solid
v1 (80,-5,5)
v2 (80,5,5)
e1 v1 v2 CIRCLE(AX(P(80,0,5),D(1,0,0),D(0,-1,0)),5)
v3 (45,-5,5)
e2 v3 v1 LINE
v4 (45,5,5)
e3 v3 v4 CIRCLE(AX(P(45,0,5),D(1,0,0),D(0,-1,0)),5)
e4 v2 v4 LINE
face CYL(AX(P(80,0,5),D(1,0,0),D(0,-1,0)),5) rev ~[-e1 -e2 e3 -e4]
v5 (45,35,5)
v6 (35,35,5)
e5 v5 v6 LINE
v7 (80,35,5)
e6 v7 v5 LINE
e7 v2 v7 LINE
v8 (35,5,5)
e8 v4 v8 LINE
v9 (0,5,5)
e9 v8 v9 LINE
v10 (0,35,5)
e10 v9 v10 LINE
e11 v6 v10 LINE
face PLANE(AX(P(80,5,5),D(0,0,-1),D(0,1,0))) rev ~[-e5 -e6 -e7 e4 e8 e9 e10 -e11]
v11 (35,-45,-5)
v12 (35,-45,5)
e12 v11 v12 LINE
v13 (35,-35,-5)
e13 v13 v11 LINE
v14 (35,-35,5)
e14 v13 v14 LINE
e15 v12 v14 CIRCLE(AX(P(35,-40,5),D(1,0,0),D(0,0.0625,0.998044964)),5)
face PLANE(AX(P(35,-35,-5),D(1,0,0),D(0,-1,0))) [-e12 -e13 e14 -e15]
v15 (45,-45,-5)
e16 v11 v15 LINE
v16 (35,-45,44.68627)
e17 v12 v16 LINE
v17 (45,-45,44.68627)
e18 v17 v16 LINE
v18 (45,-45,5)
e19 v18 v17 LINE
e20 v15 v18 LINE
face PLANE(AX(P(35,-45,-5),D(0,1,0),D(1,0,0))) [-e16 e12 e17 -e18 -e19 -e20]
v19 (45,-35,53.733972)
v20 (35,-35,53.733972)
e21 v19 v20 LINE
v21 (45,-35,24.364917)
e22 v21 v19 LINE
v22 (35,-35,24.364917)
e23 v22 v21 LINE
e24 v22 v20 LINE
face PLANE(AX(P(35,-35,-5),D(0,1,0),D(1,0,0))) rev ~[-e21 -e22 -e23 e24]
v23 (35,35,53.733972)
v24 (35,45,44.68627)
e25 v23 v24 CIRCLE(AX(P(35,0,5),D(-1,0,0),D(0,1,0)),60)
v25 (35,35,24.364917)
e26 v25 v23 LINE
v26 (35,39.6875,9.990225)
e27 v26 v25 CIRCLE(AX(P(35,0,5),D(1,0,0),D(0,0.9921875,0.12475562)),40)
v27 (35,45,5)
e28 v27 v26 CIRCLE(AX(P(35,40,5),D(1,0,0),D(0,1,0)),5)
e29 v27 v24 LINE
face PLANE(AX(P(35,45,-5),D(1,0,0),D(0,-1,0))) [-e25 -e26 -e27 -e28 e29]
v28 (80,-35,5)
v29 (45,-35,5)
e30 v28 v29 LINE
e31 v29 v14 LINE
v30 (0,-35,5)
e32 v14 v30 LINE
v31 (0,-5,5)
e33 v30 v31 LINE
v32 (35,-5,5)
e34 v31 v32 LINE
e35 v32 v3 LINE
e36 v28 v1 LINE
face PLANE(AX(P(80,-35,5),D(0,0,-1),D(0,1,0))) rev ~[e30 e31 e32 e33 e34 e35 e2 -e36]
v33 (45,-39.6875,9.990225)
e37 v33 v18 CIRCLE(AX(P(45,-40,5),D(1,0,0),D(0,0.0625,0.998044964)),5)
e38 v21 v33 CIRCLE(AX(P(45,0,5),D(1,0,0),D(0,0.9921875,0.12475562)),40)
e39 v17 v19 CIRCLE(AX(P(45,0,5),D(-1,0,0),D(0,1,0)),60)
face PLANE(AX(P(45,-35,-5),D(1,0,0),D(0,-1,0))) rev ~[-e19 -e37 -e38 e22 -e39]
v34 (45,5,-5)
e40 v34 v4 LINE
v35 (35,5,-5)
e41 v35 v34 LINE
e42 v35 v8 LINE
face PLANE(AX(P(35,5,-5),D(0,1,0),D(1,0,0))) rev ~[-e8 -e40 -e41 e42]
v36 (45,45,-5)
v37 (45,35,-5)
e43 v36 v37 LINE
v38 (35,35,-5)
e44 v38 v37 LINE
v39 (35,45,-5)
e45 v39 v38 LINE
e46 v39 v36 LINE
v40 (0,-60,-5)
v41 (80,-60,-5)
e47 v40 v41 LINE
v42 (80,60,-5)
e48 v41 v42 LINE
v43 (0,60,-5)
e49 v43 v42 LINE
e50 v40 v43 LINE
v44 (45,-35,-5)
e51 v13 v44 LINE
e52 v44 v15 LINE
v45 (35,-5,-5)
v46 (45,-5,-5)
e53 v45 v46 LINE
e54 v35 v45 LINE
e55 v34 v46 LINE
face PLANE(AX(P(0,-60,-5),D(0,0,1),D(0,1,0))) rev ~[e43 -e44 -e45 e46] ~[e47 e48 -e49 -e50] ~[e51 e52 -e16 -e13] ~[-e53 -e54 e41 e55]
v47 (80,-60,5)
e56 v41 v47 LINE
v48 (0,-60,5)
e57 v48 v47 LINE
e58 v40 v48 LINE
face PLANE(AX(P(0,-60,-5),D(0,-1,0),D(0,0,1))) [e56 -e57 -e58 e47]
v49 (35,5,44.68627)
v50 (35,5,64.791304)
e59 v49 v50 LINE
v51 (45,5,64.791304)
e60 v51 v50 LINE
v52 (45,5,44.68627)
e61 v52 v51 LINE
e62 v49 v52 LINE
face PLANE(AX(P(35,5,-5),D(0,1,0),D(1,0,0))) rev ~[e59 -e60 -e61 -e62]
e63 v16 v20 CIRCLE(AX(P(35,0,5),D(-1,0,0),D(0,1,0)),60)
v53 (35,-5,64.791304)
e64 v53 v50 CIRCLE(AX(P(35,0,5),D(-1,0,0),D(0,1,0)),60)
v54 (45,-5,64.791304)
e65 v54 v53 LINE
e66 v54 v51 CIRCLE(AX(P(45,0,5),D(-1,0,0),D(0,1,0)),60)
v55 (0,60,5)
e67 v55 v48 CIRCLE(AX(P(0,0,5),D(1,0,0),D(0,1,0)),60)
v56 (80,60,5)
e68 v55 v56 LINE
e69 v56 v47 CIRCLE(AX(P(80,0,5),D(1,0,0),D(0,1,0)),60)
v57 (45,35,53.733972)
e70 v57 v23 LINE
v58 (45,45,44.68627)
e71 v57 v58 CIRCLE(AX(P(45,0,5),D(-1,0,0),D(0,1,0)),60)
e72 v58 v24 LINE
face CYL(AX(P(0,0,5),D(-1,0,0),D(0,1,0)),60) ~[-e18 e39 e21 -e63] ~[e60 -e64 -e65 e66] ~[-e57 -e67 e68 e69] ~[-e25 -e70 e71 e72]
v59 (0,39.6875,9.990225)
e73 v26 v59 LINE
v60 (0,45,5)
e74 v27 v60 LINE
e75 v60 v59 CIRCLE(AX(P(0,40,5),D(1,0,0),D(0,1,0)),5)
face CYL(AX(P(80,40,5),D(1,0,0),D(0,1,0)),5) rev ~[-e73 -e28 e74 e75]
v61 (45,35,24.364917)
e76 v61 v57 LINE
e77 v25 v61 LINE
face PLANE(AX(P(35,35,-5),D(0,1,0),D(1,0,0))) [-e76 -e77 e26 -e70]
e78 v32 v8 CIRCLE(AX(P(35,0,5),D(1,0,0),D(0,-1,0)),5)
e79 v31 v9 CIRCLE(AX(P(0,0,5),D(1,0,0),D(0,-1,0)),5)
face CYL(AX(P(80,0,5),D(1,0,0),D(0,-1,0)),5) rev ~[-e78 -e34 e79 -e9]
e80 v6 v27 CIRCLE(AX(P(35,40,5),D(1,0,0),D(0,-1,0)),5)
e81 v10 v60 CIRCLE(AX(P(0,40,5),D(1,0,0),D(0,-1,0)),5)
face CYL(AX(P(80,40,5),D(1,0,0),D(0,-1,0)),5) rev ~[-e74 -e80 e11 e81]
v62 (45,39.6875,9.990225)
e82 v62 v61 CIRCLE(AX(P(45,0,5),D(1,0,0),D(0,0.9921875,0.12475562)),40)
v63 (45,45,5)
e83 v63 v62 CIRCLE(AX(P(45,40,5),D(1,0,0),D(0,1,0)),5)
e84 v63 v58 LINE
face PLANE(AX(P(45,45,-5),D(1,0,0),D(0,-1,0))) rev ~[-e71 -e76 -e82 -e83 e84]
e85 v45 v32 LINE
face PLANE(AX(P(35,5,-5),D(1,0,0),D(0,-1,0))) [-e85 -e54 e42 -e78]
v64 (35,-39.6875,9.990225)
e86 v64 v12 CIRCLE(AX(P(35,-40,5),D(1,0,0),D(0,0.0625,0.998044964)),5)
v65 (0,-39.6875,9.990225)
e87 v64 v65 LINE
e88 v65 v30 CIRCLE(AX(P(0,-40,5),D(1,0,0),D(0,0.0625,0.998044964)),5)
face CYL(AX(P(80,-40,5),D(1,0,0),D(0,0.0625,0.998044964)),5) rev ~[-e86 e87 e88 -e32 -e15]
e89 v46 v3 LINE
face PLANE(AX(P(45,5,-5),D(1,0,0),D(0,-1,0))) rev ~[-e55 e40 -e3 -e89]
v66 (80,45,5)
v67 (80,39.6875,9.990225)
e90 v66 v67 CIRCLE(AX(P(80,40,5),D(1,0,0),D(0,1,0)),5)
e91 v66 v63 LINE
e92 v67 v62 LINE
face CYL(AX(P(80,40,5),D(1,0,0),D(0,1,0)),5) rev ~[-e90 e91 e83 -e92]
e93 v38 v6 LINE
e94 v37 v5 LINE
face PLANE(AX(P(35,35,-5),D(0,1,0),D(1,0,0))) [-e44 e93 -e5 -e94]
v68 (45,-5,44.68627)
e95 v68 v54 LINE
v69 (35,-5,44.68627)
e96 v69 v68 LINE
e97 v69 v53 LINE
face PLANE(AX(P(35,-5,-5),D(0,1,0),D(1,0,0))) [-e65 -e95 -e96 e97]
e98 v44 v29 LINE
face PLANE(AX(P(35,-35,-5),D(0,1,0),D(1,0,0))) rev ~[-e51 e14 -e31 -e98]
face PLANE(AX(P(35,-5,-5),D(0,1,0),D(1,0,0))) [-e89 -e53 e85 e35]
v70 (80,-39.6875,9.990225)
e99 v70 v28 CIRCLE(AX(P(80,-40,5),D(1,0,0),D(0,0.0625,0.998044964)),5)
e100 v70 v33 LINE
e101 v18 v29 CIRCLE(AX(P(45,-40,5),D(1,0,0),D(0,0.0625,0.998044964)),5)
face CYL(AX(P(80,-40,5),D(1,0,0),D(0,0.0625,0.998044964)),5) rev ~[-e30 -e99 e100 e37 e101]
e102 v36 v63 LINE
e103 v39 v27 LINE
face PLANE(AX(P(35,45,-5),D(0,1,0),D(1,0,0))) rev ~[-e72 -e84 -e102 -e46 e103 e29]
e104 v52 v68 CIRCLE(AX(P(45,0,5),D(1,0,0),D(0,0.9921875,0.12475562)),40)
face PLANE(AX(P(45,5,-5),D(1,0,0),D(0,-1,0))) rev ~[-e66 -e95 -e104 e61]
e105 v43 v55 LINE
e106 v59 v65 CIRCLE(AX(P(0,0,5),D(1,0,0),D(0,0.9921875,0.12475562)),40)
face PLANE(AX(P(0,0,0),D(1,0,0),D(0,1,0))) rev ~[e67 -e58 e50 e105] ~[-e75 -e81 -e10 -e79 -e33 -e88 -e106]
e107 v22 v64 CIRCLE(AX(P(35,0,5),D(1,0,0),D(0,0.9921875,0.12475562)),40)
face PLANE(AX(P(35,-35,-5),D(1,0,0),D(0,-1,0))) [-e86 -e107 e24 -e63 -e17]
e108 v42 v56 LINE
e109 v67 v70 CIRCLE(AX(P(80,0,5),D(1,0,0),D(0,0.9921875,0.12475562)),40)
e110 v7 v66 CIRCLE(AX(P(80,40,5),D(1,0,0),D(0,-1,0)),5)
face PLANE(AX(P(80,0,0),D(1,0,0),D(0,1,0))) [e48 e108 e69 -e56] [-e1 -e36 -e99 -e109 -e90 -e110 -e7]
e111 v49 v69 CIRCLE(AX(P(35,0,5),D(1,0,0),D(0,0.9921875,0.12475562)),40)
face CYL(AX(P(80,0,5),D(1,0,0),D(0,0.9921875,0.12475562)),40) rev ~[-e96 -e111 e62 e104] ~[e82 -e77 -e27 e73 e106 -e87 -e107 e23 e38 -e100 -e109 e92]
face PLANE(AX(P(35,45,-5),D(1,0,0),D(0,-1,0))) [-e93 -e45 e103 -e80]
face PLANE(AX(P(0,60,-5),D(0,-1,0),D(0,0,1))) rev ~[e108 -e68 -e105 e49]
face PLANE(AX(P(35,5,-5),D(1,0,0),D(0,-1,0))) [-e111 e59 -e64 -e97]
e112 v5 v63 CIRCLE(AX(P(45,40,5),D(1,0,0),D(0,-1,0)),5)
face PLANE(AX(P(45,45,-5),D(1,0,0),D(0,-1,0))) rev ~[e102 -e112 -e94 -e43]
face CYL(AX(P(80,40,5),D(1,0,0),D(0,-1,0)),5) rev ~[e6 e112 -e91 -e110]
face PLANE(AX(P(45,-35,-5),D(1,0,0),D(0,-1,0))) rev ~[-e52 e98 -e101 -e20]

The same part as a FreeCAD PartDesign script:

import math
import FreeCAD as App
import Part
import Sketcher
from FreeCAD import Vector
Q = App.Units.Quantity


def add_polygon(sketch, points):
    """Adds a closed chain of lines whose ends are joined by coincident constraints."""
    first, n = sketch.GeometryCount, len(points)
    for a, b in zip(points, points[1:] + points[:1]):
        sketch.addGeometry(Part.LineSegment(App.Vector(*a, 0), App.Vector(*b, 0)), False)
    for i in range(n):
        sketch.addConstraint(Sketcher.Constraint("Coincident", first + i, 2, first + (i + 1) % n, 1))

doc = App.newDocument("Part")
body = doc.addObject("PartDesign::Body", "Body")

sketch1 = doc.addObject("Sketcher::SketchObject", "Sketch")
body.addObject(sketch1)
sketch1.AttachmentSupport = (doc.YZ_Plane, [""])
sketch1.MapMode = "FlatFace"
sketch1.addGeometry([
    Part.LineSegment(Vector(-60, 5, 0), Vector(-60, -5, 0)),
    Part.LineSegment(Vector(-60, -5, 0), Vector(60, -5, 0)),
    Part.LineSegment(Vector(60, -5, 0), Vector(60, 5, 0)),
    Part.ArcOfCircle(Part.Circle(Vector(0, 5, 0), Vector(0, 0, 1), 60), math.radians(0), math.radians(180)),
], False)
sketch1.addConstraint([
    Sketcher.Constraint("Coincident", 0, 2, 1, 1),
    Sketcher.Constraint("Coincident", 1, 2, 2, 1),
    Sketcher.Constraint("Tangent", 2, 2, 3, 1),
    Sketcher.Constraint("Tangent", 3, 2, 0, 1),
    Sketcher.Constraint("Vertical", 0),
    Sketcher.Constraint("Horizontal", 1),
    Sketcher.Constraint("Vertical", 2),
    Sketcher.Constraint("Symmetric", 0, 2, 2, 2, -1, 1),
    Sketcher.Constraint("Radius", 3, Q("60 mm")),
    Sketcher.Constraint("DistanceY", 0, 2, 0, 1, Q("10 mm")),
])
pad1 = doc.addObject("PartDesign::Pad", "Pad")
body.addObject(pad1)
pad1.Profile = sketch1
pad1.Length = 80

sketch2 = doc.addObject("Sketcher::SketchObject", "Sketch001")
body.addObject(sketch2)
sketch2.AttachmentSupport = (doc.YZ_Plane, [""])
sketch2.MapMode = "FlatFace"
sketch2.AttachmentOffset = App.Placement(Vector(0, 0, 80), App.Rotation())
sketch2.addGeometry([
    Part.ArcOfCircle(Part.Circle(Vector(0, 5, 0), Vector(0, 0, 1), 5), math.radians(180), math.radians(360)),
    Part.LineSegment(Vector(5, 5, 0), Vector(35, 5, 0)),
    Part.ArcOfCircle(Part.Circle(Vector(40, 5, 0), Vector(0, 0, 1), 5), math.radians(180), math.radians(360)),
    Part.ArcOfCircle(Part.Circle(Vector(40, 5, 0), Vector(0, 0, 1), 5), math.radians(0), math.radians(94)),
    Part.ArcOfCircle(Part.Circle(Vector(0, 5, 0), Vector(0, 0, 1), 40), math.radians(7), math.radians(173)),
    Part.ArcOfCircle(Part.Circle(Vector(-40, 5, 0), Vector(0, 0, 1), 5), math.radians(86), math.radians(360)),
    Part.LineSegment(Vector(-35, 5, 0), Vector(-5, 5, 0)),
], False)
sketch2.addConstraint([
    Sketcher.Constraint("Coincident", 0, 2, 1, 1),
    Sketcher.Constraint("Coincident", 1, 2, 2, 1),
    Sketcher.Constraint("Tangent", 2, 2, 3, 1),
    Sketcher.Constraint("Coincident", 3, 2, 4, 1),
    Sketcher.Constraint("Coincident", 4, 2, 5, 1),
    Sketcher.Constraint("Coincident", 5, 2, 6, 1),
    Sketcher.Constraint("Coincident", 6, 2, 0, 1),
    Sketcher.Constraint("Horizontal", 1),
    Sketcher.Constraint("Horizontal", 6),
    Sketcher.Constraint("Coincident", 4, 3, 0, 3),
    Sketcher.Constraint("Equal", 0, 2),
    Sketcher.Constraint("Equal", 2, 3),
    Sketcher.Constraint("Equal", 3, 5),
    Sketcher.Constraint("Symmetric", 2, 3, 5, 3, -2),
    Sketcher.Constraint("Symmetric", 0, 2, 6, 2, -2),
    Sketcher.Constraint("Horizontal", 0, 3, 2, 3),
    Sketcher.Constraint("Horizontal", 5, 3, 0, 2),
    Sketcher.Constraint("Horizontal", 1, 2, 2, 2),
    Sketcher.Constraint("Radius", 0, Q("5 mm")),
    Sketcher.Constraint("Radius", 4, Q("40 mm")),
    Sketcher.Constraint("DistanceX", 1, 1, 1, 2, Q("30 mm")),
    Sketcher.Constraint("DistanceY", -1, 1, 0, 3, Q("5 mm")),
])
pocket1 = doc.addObject("PartDesign::Pocket", "Pocket")
body.addObject(pocket1)
pocket1.Profile = sketch2
pocket1.Type = "ThroughAll"

sketch3 = doc.addObject("Sketcher::SketchObject", "Sketch002")
body.addObject(sketch3)
sketch3.AttachmentSupport = (doc.YZ_Plane, [""])
sketch3.MapMode = "FlatFace"
sketch3.AttachmentOffset = App.Placement(Vector(0, 0, 80), App.Rotation())
sketch3.addGeometry([
    Part.ArcOfCircle(Part.Circle(Vector(0, 5, 0), Vector(0, 0, 1), 5), math.radians(180), math.radians(360)),
    Part.LineSegment(Vector(5, 5, 0), Vector(35, 5, 0)),
    Part.ArcOfCircle(Part.Circle(Vector(40, 5, 0), Vector(0, 0, 1), 5), math.radians(180), math.radians(360)),
    Part.ArcOfCircle(Part.Circle(Vector(40, 5, 0), Vector(0, 0, 1), 5), math.radians(0), math.radians(94)),
    Part.ArcOfCircle(Part.Circle(Vector(0, 5, 0), Vector(0, 0, 1), 40), math.radians(7), math.radians(173)),
    Part.ArcOfCircle(Part.Circle(Vector(-40, 5, 0), Vector(0, 0, 1), 5), math.radians(86), math.radians(360)),
    Part.LineSegment(Vector(-35, 5, 0), Vector(-5, 5, 0)),
], False)
sketch3.addConstraint([
    Sketcher.Constraint("Coincident", 0, 2, 1, 1),
    Sketcher.Constraint("Coincident", 1, 2, 2, 1),
    Sketcher.Constraint("Tangent", 2, 2, 3, 1),
    Sketcher.Constraint("Coincident", 3, 2, 4, 1),
    Sketcher.Constraint("Coincident", 4, 2, 5, 1),
    Sketcher.Constraint("Coincident", 5, 2, 6, 1),
    Sketcher.Constraint("Coincident", 6, 2, 0, 1),
    Sketcher.Constraint("Horizontal", 1),
    Sketcher.Constraint("Horizontal", 6),
    Sketcher.Constraint("Coincident", 4, 3, 0, 3),
    Sketcher.Constraint("Equal", 0, 2),
    Sketcher.Constraint("Equal", 2, 3),
    Sketcher.Constraint("Equal", 3, 5),
    Sketcher.Constraint("Symmetric", 2, 3, 5, 3, -2),
    Sketcher.Constraint("Symmetric", 0, 2, 6, 2, -2),
    Sketcher.Constraint("Horizontal", 0, 3, 2, 3),
    Sketcher.Constraint("Horizontal", 5, 3, 0, 2),
    Sketcher.Constraint("Horizontal", 1, 2, 2, 2),
    Sketcher.Constraint("Radius", 0, Q("5 mm")),
    Sketcher.Constraint("Radius", 4, Q("40 mm")),
    Sketcher.Constraint("DistanceX", 1, 1, 1, 2, Q("30 mm")),
    Sketcher.Constraint("DistanceY", -1, 1, 0, 3, Q("5 mm")),
])
pocket2 = doc.addObject("PartDesign::Pocket", "Pocket001")
body.addObject(pocket2)
pocket2.Profile = sketch3
pocket2.Length = 25

sketch4 = doc.addObject("Sketcher::SketchObject", "Sketch003")
body.addObject(sketch4)
sketch4.AttachmentSupport = (doc.XY_Plane, [""])
sketch4.MapMode = "FlatFace"
sketch4.AttachmentOffset = App.Placement(Vector(0, 0, -5), App.Rotation())
add_polygon(sketch4, [(35, -45), (35, -35), (45, -35), (45, -45)])
add_polygon(sketch4, [(35, -5), (35, 5), (45, 5), (45, -5)])
add_polygon(sketch4, [(35, 35), (35, 45), (45, 45), (45, 35)])
sketch4.addConstraint([
    Sketcher.Constraint("Vertical", 0),
    Sketcher.Constraint("Horizontal", 1),
    Sketcher.Constraint("Vertical", 2),
    Sketcher.Constraint("Horizontal", 3),
    Sketcher.Constraint("Vertical", 4),
    Sketcher.Constraint("Horizontal", 5),
    Sketcher.Constraint("Vertical", 6),
    Sketcher.Constraint("Horizontal", 7),
    Sketcher.Constraint("Vertical", 8),
    Sketcher.Constraint("Horizontal", 9),
    Sketcher.Constraint("Vertical", 10),
    Sketcher.Constraint("Horizontal", 11),
    Sketcher.Constraint("Symmetric", 3, 2, 8, 2, -1),
    Sketcher.Constraint("Symmetric", 1, 2, 10, 2, -1),
    Sketcher.Constraint("Vertical", 3, 2, 4, 2),
    Sketcher.Constraint("Vertical", 2, 2, 5, 2),
    Sketcher.Constraint("Equal", 11, 0),
    Sketcher.Constraint("Equal", 2, 4),
    Sketcher.Constraint("DistanceX", 1, 1, 1, 2, Q("10 mm")),
    Sketcher.Constraint("DistanceX", -1, 1, 0, 2, Q("35 mm")),
    Sketcher.Constraint("DistanceY", 0, 2, -1, 1, Q("35 mm")),
    Sketcher.Constraint("DistanceY", -1, 1, 4, 2, Q("5 mm")),
])
pocket3 = doc.addObject("PartDesign::Pocket", "Pocket002")
body.addObject(pocket3)
pocket3.Profile = sketch4
pocket3.Type = "ThroughAll"
pocket3.Reversed = True

doc.recompute()
